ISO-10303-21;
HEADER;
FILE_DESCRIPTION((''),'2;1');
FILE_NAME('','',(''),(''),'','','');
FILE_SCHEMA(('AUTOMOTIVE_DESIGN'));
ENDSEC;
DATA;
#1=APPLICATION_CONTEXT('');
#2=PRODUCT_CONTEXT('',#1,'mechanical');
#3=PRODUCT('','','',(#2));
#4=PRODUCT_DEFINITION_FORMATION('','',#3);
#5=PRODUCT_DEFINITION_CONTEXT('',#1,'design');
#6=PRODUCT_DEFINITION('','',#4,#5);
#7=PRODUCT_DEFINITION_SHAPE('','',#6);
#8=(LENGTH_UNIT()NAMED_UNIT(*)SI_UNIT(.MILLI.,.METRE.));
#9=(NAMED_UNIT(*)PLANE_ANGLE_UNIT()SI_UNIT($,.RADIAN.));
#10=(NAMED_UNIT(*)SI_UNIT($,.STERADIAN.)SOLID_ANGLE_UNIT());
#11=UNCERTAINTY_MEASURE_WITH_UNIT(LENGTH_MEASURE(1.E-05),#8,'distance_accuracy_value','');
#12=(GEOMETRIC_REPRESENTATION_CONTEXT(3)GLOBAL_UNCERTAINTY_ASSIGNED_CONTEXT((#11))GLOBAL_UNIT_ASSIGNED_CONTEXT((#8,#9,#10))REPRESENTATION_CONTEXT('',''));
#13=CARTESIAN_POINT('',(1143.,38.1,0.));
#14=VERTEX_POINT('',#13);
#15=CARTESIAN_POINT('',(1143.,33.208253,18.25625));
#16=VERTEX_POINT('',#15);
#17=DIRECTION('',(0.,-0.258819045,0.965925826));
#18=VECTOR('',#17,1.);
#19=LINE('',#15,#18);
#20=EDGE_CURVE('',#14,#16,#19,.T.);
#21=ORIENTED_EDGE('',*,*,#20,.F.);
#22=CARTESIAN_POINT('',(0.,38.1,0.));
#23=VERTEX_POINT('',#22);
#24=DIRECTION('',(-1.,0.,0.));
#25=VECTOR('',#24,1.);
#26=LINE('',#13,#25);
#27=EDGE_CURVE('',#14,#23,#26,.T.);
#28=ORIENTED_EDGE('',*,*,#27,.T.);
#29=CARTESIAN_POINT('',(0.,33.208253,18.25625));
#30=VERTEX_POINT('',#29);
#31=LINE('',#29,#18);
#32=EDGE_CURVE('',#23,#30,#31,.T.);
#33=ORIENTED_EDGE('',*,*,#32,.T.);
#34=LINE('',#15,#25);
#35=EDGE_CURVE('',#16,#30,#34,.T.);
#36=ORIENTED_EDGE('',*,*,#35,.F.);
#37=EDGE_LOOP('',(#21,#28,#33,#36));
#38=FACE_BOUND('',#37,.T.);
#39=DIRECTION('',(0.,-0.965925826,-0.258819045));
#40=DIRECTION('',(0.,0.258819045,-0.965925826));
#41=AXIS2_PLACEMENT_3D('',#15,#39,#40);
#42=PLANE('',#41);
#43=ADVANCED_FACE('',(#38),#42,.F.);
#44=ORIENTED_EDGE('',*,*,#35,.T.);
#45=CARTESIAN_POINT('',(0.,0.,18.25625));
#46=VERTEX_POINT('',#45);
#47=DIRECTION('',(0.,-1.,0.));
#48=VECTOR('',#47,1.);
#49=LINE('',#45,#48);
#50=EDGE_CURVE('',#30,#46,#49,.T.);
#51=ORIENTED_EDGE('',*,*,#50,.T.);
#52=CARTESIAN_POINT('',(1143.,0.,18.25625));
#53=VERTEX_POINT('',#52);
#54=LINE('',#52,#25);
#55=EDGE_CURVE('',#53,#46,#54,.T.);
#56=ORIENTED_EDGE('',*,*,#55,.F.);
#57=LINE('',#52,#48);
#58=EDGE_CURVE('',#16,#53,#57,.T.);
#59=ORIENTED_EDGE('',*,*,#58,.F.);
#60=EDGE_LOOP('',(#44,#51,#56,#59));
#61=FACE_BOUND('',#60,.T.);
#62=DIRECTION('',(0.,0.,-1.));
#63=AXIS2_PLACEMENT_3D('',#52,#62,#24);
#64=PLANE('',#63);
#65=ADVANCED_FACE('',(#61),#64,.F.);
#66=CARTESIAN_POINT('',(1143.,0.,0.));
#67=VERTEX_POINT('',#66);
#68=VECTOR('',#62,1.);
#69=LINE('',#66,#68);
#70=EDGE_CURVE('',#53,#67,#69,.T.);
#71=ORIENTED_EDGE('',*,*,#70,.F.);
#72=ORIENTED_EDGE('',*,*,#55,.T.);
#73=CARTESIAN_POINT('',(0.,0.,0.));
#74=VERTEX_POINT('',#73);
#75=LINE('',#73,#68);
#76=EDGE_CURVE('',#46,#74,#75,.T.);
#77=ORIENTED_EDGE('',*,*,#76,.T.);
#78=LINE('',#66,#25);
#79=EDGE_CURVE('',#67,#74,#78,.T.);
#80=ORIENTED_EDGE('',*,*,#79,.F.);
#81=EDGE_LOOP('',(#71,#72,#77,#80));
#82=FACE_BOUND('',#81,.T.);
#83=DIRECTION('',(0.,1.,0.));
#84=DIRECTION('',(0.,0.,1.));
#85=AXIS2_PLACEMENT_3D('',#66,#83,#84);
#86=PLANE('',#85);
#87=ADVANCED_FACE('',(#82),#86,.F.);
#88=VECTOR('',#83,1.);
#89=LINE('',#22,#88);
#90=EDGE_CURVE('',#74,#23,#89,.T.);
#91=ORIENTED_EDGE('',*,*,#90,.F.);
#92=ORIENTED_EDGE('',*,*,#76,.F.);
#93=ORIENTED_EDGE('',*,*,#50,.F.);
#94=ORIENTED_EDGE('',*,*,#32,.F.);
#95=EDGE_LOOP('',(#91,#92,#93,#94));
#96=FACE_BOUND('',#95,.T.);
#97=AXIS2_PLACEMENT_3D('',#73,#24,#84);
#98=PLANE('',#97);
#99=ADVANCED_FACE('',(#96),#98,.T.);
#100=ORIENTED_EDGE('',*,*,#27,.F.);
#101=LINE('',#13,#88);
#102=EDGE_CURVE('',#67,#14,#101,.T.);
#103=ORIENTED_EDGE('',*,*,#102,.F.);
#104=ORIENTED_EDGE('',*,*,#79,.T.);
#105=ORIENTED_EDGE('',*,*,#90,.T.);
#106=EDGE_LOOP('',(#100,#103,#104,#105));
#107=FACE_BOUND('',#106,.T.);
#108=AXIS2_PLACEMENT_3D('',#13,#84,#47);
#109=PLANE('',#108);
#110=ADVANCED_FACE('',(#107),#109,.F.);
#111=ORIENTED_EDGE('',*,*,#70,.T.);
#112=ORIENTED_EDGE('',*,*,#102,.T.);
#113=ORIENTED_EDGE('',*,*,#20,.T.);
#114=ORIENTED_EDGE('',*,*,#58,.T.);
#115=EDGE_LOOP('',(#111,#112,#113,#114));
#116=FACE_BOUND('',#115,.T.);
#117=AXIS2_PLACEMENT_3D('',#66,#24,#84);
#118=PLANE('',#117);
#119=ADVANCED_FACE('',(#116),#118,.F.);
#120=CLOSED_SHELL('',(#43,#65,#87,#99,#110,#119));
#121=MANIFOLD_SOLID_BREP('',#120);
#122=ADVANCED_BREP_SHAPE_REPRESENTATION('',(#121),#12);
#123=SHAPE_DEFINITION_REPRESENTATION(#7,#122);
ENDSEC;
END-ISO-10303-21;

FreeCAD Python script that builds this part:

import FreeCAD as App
import Part
import Sketcher
from FreeCAD import Vector
Q = App.Units.Quantity


def add_polygon(sketch, points):
    """Adds a closed chain of lines whose ends are joined by coincident constraints."""
    first, n = sketch.GeometryCount, len(points)
    for a, b in zip(points, points[1:] + points[:1]):
        sketch.addGeometry(Part.LineSegment(App.Vector(*a, 0), App.Vector(*b, 0)), False)
    for i in range(n):
        sketch.addConstraint(Sketcher.Constraint("Coincident", first + i, 2, first + (i + 1) % n, 1))

doc = App.newDocument("Part")
body = doc.addObject("PartDesign::Body", "Body")

sketch1 = body.newObject("Sketcher::SketchObject", "Sketch")
sketch1.AttachmentSupport = (doc.getObject("YZ_Plane"), [""])
sketch1.MapMode = "FlatFace"
add_polygon(sketch1, [(0, 18), (0, 0), (38, 0), (33, 18)])
sketch1.addConstraint([
    Sketcher.Constraint("Vertical", 0),
    Sketcher.Constraint("Horizontal", 1),
    Sketcher.Constraint("Horizontal", 3),
    Sketcher.Constraint("Coincident", 0, 2, -1, 1),
    Sketcher.Constraint("DistanceX", 1, 1, 1, 2, Q("1.5 in")),
    Sketcher.Constraint("Angle", 2, Q("105 deg")),
    Sketcher.Constraint("DistanceY", 0, 2, 0, 1, Q("0.71875 in")),
])
pad1 = body.newObject("PartDesign::Pad", "Pad")
pad1.Profile = sketch1
pad1.Length = Q("45 in")

doc.recompute()
